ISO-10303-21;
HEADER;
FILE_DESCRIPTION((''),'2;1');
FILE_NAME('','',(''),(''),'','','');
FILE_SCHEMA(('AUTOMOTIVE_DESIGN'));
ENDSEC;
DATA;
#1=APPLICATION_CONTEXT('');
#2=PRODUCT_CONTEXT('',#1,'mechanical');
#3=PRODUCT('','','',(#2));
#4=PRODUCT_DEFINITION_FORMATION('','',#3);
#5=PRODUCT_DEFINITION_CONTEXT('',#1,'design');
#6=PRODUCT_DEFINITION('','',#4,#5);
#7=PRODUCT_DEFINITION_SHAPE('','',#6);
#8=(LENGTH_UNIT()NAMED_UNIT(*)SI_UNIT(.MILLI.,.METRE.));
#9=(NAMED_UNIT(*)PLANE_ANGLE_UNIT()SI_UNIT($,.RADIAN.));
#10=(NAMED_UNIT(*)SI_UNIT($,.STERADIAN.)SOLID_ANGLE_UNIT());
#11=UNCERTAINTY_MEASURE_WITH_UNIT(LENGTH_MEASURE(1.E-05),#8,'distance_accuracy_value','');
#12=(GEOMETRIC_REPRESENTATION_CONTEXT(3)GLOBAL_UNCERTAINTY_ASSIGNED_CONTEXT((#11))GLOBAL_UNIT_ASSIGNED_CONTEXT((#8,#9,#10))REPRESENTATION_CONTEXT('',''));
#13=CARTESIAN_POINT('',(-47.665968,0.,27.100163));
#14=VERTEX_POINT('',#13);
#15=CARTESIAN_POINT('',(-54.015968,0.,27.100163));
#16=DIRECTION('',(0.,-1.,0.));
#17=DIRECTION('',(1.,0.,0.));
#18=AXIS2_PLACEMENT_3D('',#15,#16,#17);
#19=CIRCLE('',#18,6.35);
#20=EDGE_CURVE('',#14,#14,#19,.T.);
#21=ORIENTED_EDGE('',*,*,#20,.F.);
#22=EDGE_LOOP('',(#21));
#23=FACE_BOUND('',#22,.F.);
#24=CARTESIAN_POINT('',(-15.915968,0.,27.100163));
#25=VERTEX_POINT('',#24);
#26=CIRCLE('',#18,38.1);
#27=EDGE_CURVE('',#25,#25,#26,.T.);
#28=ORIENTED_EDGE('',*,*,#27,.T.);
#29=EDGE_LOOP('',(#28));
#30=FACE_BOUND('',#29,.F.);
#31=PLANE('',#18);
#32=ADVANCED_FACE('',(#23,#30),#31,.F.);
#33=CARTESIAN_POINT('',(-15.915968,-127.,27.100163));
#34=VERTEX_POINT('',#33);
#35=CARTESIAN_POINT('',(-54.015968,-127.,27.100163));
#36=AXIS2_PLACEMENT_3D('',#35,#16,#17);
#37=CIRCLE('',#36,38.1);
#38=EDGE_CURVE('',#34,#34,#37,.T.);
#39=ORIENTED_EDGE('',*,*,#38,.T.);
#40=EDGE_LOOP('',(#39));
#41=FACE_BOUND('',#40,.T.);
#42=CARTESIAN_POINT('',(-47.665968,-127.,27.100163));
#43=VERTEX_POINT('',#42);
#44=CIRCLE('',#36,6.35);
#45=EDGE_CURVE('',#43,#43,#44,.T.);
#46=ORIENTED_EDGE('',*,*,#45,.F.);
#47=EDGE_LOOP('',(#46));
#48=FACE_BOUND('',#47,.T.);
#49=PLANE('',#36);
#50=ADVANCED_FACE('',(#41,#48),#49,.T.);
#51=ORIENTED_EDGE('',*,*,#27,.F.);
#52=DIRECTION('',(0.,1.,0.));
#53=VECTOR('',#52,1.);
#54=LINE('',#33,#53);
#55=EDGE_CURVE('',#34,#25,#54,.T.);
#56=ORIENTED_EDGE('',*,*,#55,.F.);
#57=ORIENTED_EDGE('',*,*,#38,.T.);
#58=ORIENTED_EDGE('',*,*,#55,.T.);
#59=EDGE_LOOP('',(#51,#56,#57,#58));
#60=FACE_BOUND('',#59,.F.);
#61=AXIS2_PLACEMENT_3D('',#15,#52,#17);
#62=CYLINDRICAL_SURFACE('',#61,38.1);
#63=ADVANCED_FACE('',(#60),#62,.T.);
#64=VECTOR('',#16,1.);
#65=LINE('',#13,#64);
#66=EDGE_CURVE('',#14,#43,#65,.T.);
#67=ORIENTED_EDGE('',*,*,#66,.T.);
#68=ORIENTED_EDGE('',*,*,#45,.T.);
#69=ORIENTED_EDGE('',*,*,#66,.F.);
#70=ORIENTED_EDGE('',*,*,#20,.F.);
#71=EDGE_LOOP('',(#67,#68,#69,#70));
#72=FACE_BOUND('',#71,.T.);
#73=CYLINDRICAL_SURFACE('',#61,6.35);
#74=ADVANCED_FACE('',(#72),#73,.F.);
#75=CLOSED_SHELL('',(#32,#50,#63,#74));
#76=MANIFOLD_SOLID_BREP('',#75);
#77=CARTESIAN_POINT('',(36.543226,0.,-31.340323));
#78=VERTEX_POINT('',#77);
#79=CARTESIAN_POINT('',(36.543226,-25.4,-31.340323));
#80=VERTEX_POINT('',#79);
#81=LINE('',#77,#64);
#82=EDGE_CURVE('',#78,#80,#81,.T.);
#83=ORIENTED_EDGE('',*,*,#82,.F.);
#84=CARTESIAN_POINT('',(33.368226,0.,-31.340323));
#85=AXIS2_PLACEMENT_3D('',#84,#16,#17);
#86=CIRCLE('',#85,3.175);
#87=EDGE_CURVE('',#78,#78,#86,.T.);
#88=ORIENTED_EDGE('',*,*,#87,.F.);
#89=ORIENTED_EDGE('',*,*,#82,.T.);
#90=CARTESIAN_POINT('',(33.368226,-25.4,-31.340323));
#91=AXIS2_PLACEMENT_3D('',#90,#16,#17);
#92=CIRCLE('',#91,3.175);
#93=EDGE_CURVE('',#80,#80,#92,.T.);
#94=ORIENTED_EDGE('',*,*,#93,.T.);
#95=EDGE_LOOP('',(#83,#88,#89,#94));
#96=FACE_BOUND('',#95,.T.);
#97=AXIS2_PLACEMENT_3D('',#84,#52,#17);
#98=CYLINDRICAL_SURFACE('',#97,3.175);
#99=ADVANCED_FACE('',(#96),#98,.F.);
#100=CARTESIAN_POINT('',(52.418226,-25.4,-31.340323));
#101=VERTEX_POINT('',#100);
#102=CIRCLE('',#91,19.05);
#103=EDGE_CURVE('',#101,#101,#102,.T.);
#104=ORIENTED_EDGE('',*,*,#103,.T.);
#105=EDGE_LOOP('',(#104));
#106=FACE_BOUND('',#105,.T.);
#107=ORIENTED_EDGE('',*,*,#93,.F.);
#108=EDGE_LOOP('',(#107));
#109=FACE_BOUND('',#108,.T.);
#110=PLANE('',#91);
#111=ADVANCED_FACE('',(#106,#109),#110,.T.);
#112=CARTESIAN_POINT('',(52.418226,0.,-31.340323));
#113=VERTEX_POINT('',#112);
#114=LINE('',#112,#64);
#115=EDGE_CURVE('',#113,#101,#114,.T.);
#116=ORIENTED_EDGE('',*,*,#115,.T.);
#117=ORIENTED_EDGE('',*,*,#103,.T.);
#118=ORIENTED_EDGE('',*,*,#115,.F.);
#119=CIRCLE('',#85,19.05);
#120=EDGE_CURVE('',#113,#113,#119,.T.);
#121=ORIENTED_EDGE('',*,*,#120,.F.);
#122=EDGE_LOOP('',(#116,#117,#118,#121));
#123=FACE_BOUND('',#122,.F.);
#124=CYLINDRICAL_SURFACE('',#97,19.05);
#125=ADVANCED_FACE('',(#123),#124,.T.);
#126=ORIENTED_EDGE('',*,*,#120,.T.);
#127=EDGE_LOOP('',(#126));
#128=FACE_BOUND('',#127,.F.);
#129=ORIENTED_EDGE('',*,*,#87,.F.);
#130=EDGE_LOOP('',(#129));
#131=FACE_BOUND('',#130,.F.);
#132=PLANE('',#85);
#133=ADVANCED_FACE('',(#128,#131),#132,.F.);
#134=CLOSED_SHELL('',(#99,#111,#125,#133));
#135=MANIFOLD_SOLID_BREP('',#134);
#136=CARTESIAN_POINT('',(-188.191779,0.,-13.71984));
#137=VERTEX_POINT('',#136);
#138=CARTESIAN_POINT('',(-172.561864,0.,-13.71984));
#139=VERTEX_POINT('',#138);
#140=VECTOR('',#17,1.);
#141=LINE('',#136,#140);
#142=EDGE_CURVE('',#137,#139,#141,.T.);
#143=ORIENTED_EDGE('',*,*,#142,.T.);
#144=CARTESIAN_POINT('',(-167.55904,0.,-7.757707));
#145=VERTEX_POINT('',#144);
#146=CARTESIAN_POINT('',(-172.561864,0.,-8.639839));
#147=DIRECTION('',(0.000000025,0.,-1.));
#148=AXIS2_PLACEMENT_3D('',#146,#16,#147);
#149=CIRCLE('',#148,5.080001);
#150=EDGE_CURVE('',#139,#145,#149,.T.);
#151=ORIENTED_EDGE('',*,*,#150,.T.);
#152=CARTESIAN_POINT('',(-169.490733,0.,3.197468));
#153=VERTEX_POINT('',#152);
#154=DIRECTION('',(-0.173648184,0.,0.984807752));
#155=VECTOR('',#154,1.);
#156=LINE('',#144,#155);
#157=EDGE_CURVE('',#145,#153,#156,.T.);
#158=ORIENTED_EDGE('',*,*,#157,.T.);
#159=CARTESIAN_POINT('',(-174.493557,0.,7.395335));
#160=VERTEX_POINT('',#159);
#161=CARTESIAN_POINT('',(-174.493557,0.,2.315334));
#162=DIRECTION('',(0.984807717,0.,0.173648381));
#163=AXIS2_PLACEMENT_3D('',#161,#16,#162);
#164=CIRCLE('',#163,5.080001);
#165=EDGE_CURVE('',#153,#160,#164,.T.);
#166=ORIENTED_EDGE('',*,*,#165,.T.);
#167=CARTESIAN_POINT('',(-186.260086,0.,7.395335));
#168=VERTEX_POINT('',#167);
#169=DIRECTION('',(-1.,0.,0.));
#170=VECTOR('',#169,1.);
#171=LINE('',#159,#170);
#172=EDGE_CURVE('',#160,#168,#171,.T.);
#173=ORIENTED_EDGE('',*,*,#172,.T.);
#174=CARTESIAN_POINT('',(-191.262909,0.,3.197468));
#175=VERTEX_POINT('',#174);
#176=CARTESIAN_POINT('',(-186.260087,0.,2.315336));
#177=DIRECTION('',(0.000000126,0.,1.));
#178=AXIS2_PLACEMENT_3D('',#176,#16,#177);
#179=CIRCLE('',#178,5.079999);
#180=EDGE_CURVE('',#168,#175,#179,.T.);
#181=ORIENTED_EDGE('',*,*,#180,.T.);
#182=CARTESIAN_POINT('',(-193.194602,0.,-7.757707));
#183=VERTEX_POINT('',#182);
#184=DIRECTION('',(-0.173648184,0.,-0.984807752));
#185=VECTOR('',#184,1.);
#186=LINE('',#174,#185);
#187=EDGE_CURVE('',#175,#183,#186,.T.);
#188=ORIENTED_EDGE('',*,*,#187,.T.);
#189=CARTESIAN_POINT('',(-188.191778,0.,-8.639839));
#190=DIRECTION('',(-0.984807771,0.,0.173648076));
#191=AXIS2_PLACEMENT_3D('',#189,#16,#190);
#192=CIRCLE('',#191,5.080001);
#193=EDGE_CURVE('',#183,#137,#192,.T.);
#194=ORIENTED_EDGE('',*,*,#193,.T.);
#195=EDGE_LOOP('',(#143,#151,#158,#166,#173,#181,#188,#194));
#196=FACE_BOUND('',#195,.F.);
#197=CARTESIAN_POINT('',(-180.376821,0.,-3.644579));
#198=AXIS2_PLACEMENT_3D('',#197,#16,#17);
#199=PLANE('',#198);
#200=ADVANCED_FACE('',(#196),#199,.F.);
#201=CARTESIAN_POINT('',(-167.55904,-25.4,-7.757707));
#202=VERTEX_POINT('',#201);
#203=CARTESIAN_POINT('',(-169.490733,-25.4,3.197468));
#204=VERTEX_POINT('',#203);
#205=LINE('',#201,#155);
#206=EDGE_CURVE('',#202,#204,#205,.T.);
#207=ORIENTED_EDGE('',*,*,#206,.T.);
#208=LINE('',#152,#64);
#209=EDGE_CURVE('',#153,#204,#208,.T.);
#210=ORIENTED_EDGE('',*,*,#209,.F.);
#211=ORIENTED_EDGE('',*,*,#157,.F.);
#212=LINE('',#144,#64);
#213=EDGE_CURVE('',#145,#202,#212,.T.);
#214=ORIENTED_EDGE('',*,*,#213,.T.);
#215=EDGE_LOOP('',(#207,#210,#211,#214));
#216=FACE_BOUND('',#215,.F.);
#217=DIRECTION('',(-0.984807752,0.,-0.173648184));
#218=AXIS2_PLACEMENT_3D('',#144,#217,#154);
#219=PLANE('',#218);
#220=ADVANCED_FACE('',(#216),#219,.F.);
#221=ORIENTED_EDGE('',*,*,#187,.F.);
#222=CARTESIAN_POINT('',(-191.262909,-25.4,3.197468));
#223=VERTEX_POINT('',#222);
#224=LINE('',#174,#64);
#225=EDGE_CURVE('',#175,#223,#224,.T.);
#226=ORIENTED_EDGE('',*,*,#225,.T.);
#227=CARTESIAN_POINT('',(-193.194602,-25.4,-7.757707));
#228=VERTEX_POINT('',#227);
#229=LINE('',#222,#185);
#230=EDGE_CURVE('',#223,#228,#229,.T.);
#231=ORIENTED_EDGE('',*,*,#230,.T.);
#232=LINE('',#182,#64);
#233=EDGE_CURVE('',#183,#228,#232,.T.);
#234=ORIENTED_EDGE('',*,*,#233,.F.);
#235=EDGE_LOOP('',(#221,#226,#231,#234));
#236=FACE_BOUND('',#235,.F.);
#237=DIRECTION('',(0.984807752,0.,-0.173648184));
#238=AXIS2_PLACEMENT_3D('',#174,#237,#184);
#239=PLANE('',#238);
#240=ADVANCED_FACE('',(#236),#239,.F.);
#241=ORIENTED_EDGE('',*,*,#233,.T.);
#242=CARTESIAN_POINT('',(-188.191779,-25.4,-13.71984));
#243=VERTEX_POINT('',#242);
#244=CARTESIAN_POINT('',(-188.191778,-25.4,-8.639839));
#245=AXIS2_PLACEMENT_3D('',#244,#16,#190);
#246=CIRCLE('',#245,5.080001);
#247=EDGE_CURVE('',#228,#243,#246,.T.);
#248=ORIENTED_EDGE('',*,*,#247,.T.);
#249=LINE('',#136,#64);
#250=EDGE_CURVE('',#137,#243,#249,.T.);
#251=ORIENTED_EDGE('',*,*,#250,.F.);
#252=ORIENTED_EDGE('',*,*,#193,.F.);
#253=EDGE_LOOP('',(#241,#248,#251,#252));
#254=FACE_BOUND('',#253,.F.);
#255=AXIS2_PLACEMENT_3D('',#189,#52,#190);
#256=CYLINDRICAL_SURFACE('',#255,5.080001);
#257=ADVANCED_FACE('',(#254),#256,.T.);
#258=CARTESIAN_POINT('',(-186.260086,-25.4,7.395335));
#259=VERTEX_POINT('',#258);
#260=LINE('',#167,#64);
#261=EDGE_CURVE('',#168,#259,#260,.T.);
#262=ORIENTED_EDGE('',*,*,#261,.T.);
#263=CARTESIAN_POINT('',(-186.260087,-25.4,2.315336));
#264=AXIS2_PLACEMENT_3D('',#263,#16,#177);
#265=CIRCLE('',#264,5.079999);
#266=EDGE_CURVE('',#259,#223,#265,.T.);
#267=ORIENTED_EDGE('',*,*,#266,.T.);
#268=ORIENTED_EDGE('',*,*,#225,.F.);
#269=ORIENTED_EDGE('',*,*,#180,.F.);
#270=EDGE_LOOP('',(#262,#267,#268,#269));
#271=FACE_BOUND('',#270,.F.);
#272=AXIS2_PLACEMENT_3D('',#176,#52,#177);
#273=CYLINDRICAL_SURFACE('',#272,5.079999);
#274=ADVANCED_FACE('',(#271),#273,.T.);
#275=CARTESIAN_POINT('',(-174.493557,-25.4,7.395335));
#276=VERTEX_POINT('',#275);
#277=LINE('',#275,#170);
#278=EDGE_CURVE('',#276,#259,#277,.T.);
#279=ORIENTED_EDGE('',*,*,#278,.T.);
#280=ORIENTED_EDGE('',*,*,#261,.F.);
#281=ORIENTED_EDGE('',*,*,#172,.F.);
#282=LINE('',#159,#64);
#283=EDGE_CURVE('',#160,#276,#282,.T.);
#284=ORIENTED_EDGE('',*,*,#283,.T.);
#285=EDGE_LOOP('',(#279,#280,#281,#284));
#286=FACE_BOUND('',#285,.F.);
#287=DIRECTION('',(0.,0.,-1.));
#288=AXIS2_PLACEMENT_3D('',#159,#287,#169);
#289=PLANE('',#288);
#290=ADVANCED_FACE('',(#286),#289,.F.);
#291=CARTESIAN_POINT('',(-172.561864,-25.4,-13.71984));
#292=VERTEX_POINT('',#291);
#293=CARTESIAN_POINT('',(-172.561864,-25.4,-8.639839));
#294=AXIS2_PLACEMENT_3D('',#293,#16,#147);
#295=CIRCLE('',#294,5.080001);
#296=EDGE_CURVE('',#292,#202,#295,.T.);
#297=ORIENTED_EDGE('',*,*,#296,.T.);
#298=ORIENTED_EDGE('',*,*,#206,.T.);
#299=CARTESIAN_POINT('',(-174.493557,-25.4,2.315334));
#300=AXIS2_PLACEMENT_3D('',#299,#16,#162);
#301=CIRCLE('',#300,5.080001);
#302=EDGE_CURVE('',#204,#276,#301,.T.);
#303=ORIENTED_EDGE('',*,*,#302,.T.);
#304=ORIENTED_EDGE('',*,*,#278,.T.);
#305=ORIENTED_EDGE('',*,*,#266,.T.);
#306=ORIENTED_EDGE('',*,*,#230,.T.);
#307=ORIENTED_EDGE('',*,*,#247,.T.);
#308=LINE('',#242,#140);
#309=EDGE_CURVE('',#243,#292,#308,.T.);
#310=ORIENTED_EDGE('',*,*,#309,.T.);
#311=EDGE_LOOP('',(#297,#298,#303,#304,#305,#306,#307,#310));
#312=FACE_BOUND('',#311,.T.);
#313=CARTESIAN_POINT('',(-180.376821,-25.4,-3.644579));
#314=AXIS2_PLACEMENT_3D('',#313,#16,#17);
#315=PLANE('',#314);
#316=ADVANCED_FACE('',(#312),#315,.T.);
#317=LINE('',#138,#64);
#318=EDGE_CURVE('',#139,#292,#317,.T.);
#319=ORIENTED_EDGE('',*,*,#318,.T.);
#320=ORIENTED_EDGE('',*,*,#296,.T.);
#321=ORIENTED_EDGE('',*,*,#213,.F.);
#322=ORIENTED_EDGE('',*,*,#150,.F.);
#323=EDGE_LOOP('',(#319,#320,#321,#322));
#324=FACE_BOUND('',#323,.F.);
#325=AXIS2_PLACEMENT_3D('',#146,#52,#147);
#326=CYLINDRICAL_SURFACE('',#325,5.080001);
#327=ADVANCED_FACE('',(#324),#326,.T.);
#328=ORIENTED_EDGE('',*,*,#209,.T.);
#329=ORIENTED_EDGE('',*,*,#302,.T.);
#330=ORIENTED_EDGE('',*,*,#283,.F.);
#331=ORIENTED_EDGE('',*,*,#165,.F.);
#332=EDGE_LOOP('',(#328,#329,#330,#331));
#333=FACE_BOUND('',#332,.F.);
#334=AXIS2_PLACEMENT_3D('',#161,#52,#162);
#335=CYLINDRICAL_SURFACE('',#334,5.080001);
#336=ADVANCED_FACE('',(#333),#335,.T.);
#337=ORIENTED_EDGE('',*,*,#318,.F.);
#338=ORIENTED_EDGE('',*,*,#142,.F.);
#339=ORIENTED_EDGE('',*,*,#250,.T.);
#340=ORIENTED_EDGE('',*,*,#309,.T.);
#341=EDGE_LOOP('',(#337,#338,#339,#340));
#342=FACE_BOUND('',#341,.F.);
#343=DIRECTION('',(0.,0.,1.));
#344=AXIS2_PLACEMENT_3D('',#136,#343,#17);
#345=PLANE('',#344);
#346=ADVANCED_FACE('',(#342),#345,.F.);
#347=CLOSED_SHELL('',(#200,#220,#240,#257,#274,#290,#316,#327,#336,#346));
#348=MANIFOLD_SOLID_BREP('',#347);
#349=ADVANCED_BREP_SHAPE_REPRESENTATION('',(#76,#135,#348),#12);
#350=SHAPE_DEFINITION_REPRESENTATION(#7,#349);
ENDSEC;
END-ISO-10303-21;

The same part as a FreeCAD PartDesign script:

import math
import FreeCAD as App
import Part
import Sketcher
Q = App.Units.Quantity

doc = App.newDocument("Part")
body = doc.addObject("PartDesign::Body", "Body")

# Sketch on XZ plane
sketch1 = doc.addObject("Sketcher::SketchObject", "Sketch")
body.addObject(sketch1)
sketch1.AttachmentSupport = (doc.XZ_Plane, [""])
sketch1.MapMode = "FlatFace"
sketch1.addGeometry(Part.Circle(App.Vector(-54, 27, 0), App.Vector(0, 0, 1), 38), False)
sketch1.addGeometry(Part.Circle(App.Vector(-54, 27, 0), App.Vector(0, 0, 1), 6), False)
sketch1.addConstraint(Sketcher.Constraint("Coincident", 1, 3, 0, 3))
sketch1.addConstraint(Sketcher.Constraint("Diameter", 0, Q("3 in")))
sketch1.addConstraint(Sketcher.Constraint("Diameter", 1, Q("0.5 in")))
sketch1.addConstraint(Sketcher.Constraint("DistanceX", 0, 3, -1, 1, 54.015968))
sketch1.addConstraint(Sketcher.Constraint("DistanceY", -1, 1, 0, 3, 27.100163))
pad1 = doc.addObject("PartDesign::Pad", "Pad")
body.addObject(pad1)
pad1.Profile = sketch1
pad1.Length = Q("5 in")

# Sketch on XZ plane
sketch2 = doc.addObject("Sketcher::SketchObject", "Sketch001")
body.addObject(sketch2)
sketch2.AttachmentSupport = (doc.XZ_Plane, [""])
sketch2.MapMode = "FlatFace"
sketch2.addGeometry(Part.Circle(App.Vector(-54, 27, 0), App.Vector(0, 0, 1), 38), False)
sketch2.addGeometry(Part.Circle(App.Vector(-54, 27, 0), App.Vector(0, 0, 1), 6), False)
sketch2.addConstraint(Sketcher.Constraint("Coincident", 1, 3, 0, 3))
sketch2.addConstraint(Sketcher.Constraint("Diameter", 0, Q("3 in")))
sketch2.addConstraint(Sketcher.Constraint("Diameter", 1, Q("0.5 in")))
sketch2.addConstraint(Sketcher.Constraint("DistanceX", 0, 3, -1, 1, 54.015968))
sketch2.addConstraint(Sketcher.Constraint("DistanceY", -1, 1, 0, 3, 27.100163))
pad2 = doc.addObject("PartDesign::Pad", "Pad001")
body.addObject(pad2)
pad2.Profile = sketch2
pad2.Length = Q("0.5 in")
body2 = doc.addObject("PartDesign::Body", "Body001")
body2.AllowCompound = True

# Sketch on XZ plane
sketch3 = doc.addObject("Sketcher::SketchObject", "Sketch002")
body2.addObject(sketch3)
sketch3.AttachmentSupport = (doc.getObject("XZ_Plane001"), [""])
sketch3.MapMode = "FlatFace"
sketch3.addGeometry(Part.Circle(App.Vector(33.4, -31.3, 0), App.Vector(0, 0, 1), 19.1), False)
sketch3.addGeometry(Part.Circle(App.Vector(33.4, -31.3, 0), App.Vector(0, 0, 1), 3.2), False)
sketch3.addGeometry(Part.LineSegment(App.Vector(-174.5, 7.4, 0), App.Vector(-186.3, 7.4, 0)), False)
sketch3.addGeometry(Part.ArcOfCircle(Part.Circle(App.Vector(-186.3, 2.3, 0), App.Vector(0, 0, 1), 5.1), math.radians(90), math.radians(170)), False)
sketch3.addGeometry(Part.LineSegment(App.Vector(-191.3, 3.2, 0), App.Vector(-193.2, -7.8, 0)), False)
sketch3.addGeometry(Part.ArcOfCircle(Part.Circle(App.Vector(-188.2, -8.6, 0), App.Vector(0, 0, 1), 5.1), math.radians(170), math.radians(270)), False)
sketch3.addGeometry(Part.LineSegment(App.Vector(-188.2, -13.7, 0), App.Vector(-172.6, -13.7, 0)), False)
sketch3.addGeometry(Part.ArcOfCircle(Part.Circle(App.Vector(-172.6, -8.6, 0), App.Vector(0, 0, 1), 5.1), math.radians(-90), math.radians(10)), False)
sketch3.addGeometry(Part.LineSegment(App.Vector(-167.6, -7.8, 0), App.Vector(-169.5, 3.2, 0)), False)
sketch3.addGeometry(Part.ArcOfCircle(Part.Circle(App.Vector(-174.5, 2.3, 0), App.Vector(0, 0, 1), 5.1), math.radians(10), math.radians(90)), False)
sketch3.addConstraint(Sketcher.Constraint("Tangent", 2, 2, 3, 1))
sketch3.addConstraint(Sketcher.Constraint("Tangent", 3, 2, 4, 1))
sketch3.addConstraint(Sketcher.Constraint("Tangent", 4, 2, 5, 1))
sketch3.addConstraint(Sketcher.Constraint("Tangent", 5, 2, 6, 1))
sketch3.addConstraint(Sketcher.Constraint("Tangent", 6, 2, 7, 1))
sketch3.addConstraint(Sketcher.Constraint("Tangent", 7, 2, 8, 1))
sketch3.addConstraint(Sketcher.Constraint("Tangent", 8, 2, 9, 1))
sketch3.addConstraint(Sketcher.Constraint("Tangent", 9, 2, 2, 1))
sketch3.addConstraint(Sketcher.Constraint("Horizontal", 2))
sketch3.addConstraint(Sketcher.Constraint("Horizontal", 6))
sketch3.addConstraint(Sketcher.Constraint("Coincident", 1, 3, 0, 3))
sketch3.addConstraint(Sketcher.Constraint("Equal", 3, 5))
sketch3.addConstraint(Sketcher.Constraint("Equal", 5, 7))
sketch3.addConstraint(Sketcher.Constraint("Equal", 7, 9))
sketch3.addConstraint(Sketcher.Constraint("Horizontal", 4, 2, 7, 2))
sketch3.addConstraint(Sketcher.Constraint("Diameter", 0, Q("1.5 in")))
sketch3.addConstraint(Sketcher.Constraint("Radius", 3, Q("0.2 in")))
sketch3.addConstraint(Sketcher.Constraint("Diameter", 1, Q("0.25 in")))
sketch3.addConstraint(Sketcher.Constraint("Angle", 4, Q("-100 deg")))
sketch3.addConstraint(Sketcher.Constraint("DistanceX", 3, 3, 7, 3, Q("0.5393001 in")))
sketch3.addConstraint(Sketcher.Constraint("DistanceX", 2, 2, 2, 1, 11.766529))
sketch3.addConstraint(Sketcher.Constraint("DistanceX", 4, 2, -1, 1, 193.194602))
sketch3.addConstraint(Sketcher.Constraint("DistanceY", 5, 3, -1, 1, 8.639839))
sketch3.addConstraint(Sketcher.Constraint("DistanceY", 0, 3, 3, 3, 33.655659))
sketch3.addConstraint(Sketcher.Constraint("DistanceX", 7, 3, 0, 3, 205.93009))
pad3 = doc.addObject("PartDesign::Pad", "Pad002")
body2.addObject(pad3)
pad3.Profile = sketch3
pad3.Length = Q("1 in")

doc.recompute()
